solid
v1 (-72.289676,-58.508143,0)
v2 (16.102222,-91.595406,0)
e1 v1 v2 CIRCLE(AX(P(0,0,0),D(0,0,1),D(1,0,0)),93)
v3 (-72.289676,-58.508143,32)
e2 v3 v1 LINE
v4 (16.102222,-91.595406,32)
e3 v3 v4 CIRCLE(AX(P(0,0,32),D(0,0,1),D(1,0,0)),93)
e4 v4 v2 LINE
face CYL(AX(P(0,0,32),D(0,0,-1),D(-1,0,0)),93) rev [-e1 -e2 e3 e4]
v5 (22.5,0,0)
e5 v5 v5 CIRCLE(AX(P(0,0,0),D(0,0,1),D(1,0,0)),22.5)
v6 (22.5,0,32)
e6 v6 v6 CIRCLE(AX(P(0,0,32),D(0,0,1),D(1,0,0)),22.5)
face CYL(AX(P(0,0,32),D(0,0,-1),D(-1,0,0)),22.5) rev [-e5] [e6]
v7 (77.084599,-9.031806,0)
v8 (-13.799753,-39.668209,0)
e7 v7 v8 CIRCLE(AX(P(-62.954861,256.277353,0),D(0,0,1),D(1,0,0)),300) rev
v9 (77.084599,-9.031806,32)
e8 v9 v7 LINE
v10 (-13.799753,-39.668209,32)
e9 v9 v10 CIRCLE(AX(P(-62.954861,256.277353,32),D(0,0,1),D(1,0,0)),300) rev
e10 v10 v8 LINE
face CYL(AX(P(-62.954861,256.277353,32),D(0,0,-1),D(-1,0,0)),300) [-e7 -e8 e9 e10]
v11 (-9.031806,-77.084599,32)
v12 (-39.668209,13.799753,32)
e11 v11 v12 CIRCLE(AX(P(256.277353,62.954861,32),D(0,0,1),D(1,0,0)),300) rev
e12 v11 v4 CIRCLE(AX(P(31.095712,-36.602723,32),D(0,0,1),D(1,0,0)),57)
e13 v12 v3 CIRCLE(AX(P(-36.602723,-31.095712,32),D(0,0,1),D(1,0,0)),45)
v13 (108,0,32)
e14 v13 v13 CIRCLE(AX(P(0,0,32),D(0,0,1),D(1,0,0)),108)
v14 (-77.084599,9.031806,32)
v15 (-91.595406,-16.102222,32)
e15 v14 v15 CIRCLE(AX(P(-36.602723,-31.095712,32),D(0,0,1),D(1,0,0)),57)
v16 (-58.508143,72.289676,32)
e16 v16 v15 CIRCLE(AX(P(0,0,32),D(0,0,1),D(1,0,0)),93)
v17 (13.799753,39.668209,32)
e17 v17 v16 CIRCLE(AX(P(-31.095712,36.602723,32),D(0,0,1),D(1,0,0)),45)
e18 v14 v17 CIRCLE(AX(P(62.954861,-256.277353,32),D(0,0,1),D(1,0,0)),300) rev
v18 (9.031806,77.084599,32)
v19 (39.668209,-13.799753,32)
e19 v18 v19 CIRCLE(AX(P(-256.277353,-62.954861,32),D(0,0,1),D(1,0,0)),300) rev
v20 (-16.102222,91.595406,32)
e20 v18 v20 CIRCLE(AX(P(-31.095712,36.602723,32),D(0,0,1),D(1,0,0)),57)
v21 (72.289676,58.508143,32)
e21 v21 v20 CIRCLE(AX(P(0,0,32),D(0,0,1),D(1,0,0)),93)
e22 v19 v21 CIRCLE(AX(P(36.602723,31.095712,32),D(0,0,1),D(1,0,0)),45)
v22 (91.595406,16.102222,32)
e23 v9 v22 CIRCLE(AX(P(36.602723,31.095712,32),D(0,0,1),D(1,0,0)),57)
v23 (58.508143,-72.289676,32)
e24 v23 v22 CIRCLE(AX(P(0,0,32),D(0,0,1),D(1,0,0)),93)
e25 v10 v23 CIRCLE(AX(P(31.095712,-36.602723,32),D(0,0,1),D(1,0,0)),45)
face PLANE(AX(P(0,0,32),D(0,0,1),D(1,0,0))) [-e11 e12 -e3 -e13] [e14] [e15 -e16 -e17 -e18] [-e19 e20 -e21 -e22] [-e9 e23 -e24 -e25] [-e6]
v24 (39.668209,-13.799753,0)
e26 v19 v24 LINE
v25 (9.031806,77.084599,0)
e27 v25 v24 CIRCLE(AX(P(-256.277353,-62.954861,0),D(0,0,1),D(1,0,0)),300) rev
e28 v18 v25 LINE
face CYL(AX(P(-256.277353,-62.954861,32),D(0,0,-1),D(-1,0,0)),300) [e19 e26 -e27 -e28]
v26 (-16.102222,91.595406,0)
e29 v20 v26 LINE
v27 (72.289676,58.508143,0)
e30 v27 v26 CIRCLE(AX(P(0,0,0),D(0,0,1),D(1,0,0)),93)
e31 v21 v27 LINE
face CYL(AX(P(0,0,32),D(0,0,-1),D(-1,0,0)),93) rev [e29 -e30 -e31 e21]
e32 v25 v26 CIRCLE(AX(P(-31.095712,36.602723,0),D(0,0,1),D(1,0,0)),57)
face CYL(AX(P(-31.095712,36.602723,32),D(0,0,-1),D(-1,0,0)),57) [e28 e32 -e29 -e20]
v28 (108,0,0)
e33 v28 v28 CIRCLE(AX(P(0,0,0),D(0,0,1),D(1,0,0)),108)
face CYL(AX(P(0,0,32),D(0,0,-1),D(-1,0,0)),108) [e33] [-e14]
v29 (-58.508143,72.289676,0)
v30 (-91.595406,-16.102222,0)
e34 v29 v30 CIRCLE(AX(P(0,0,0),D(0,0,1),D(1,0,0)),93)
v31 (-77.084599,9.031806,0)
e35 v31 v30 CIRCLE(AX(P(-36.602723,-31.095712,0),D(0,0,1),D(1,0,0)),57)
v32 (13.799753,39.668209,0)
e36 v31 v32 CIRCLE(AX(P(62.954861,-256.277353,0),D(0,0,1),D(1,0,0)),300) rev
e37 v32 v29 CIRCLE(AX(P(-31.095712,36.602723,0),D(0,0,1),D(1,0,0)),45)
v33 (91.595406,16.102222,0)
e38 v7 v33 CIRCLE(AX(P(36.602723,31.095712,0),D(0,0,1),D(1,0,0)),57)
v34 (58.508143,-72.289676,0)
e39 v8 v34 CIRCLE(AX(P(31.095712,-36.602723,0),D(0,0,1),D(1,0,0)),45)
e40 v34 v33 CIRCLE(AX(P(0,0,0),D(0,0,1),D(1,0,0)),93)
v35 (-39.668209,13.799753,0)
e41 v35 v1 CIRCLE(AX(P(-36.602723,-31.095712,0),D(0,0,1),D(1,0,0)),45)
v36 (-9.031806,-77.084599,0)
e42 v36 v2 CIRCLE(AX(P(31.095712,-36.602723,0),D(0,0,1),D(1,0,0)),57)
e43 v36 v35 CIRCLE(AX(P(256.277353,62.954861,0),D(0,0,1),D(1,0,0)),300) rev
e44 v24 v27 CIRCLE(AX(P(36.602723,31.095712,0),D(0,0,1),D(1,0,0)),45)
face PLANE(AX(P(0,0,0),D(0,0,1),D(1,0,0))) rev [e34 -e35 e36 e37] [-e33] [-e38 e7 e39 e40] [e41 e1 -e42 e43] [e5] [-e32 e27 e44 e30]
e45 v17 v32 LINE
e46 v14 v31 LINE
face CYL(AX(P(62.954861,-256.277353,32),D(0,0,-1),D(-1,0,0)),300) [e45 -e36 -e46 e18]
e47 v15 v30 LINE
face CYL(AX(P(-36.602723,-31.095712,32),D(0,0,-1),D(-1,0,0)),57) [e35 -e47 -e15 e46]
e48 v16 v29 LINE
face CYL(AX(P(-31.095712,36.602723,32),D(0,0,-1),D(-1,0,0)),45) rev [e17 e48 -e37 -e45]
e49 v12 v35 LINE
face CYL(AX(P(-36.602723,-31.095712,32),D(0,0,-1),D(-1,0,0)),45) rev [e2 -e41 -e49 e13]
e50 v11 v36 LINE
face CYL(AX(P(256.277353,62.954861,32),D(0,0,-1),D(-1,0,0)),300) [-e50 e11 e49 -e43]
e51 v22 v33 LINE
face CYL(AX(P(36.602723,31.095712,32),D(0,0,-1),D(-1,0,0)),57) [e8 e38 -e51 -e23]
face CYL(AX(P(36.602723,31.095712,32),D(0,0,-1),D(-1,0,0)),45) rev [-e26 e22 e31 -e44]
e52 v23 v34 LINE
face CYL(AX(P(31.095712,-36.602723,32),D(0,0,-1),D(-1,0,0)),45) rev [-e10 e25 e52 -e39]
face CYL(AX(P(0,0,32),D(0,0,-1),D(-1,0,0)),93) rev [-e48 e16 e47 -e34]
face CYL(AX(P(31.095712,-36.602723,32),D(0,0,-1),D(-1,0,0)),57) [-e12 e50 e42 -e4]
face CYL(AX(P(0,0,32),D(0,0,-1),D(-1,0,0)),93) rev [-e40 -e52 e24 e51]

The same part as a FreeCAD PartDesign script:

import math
import FreeCAD as App
import Part
import Sketcher
from FreeCAD import Vector
Q = App.Units.Quantity

doc = App.newDocument("Part")
params = doc.addObject("Spreadsheet::Sheet", "Params")
for row, (alias, value) in enumerate([
    ("sketch1_diameter", "216 mm"),
    ("sketch1_diameter2", "45 mm"),
    ("sketch1_radius", "45 mm"),
    ("sketch1_radius2", "300 mm"),
    ("sketch1_radius3", "57 mm"),
    ("pad1_length", "32 mm"),
], start=1):
    params.set(f"A{row}", alias)
    params.set(f"B{row}", "=" + value)
    params.setAlias(f"B{row}", alias)

body = doc.addObject("PartDesign::Body", "Body")

# Sketch on XY plane
sketch1 = body.newObject("Sketcher::SketchObject", "Sketch")
sketch1.AttachmentSupport = (doc.getObject("XY_Plane"), [""])
sketch1.MapMode = "FlatFace"
sketch1.addGeometry(Part.Circle(Vector(0, 0, 0), Vector(0, 0, 1), 108), False)
sketch1.addGeometry(Part.ArcOfCircle(Part.Circle(Vector(-37, -31, 0), Vector(0, 0, 1), 45), math.radians(94), math.radians(218)), False)
sketch1.addGeometry(Part.ArcOfCircle(Part.Circle(Vector(256, 63, 0), Vector(0, 0, 1), 300), math.radians(-170.57), math.radians(-152.17)), False)
sketch1.addGeometry(Part.ArcOfCircle(Part.Circle(Vector(31, -37, 0), Vector(0, 0, 1), 57), math.radians(-135), math.radians(-105)), False)
sketch1.addGeometry(Part.ArcOfCircle(Part.Circle(Vector(0, 0, 0), Vector(0, 0, 1), 93), math.radians(-102), math.radians(-80)), False)
sketch1.addGeometry(Part.ArcOfCircle(Part.Circle(Vector(0, 0, 0), Vector(0, 0, 1), 93), math.radians(-141), math.radians(-102)), False)
sketch1.addGeometry(Part.ArcOfCircle(Part.Circle(Vector(31, -37, 0), Vector(0, 0, 1), 45), math.radians(-176), math.radians(-52)), False)
sketch1.addGeometry(Part.ArcOfCircle(Part.Circle(Vector(-63, 256, 0), Vector(0, 0, 1), 300), math.radians(-80.57), math.radians(-62.17)), False)
sketch1.addGeometry(Part.ArcOfCircle(Part.Circle(Vector(37, 31, 0), Vector(0, 0, 1), 57), math.radians(-45), math.radians(-15)), False)
sketch1.addGeometry(Part.ArcOfCircle(Part.Circle(Vector(0, 0, 0), Vector(0, 0, 1), 93), math.radians(-12), math.radians(10)), False)
sketch1.addGeometry(Part.ArcOfCircle(Part.Circle(Vector(0, 0, 0), Vector(0, 0, 1), 93), math.radians(-51), math.radians(-12)), False)
sketch1.addGeometry(Part.Circle(Vector(0, 0, 0), Vector(0, 0, 1), 22), False)
sketch1.addGeometry(Part.ArcOfCircle(Part.Circle(Vector(-31, 37, 0), Vector(0, 0, 1), 45), math.radians(4), math.radians(128)), False)
sketch1.addGeometry(Part.ArcOfCircle(Part.Circle(Vector(63, -256, 0), Vector(0, 0, 1), 300), math.radians(99.43), math.radians(117.83)), False)
sketch1.addGeometry(Part.ArcOfCircle(Part.Circle(Vector(-37, -31, 0), Vector(0, 0, 1), 57), math.radians(135), math.radians(165)), False)
sketch1.addGeometry(Part.ArcOfCircle(Part.Circle(Vector(0, 0, 0), Vector(0, 0, 1), 93), math.radians(168), math.radians(190)), False)
sketch1.addGeometry(Part.ArcOfCircle(Part.Circle(Vector(0, 0, 0), Vector(0, 0, 1), 93), math.radians(129), math.radians(168)), False)
sketch1.addGeometry(Part.ArcOfCircle(Part.Circle(Vector(37, 31, 0), Vector(0, 0, 1), 45), math.radians(-86), math.radians(38)), False)
sketch1.addGeometry(Part.ArcOfCircle(Part.Circle(Vector(-256, -63, 0), Vector(0, 0, 1), 300), math.radians(9.43), math.radians(27.83)), False)
sketch1.addGeometry(Part.ArcOfCircle(Part.Circle(Vector(-31, 37, 0), Vector(0, 0, 1), 57), math.radians(45), math.radians(75)), False)
sketch1.addGeometry(Part.ArcOfCircle(Part.Circle(Vector(0, 0, 0), Vector(0, 0, 1), 93), math.radians(78), math.radians(100)), False)
sketch1.addGeometry(Part.ArcOfCircle(Part.Circle(Vector(0, 0, 0), Vector(0, 0, 1), 93), math.radians(39), math.radians(78)), False)
sketch1.addConstraint(Sketcher.Constraint("Coincident", 1, 1, 2, 1))
sketch1.addConstraint(Sketcher.Constraint("Coincident", 2, 2, 3, 1))
sketch1.addConstraint(Sketcher.Constraint("Coincident", 3, 2, 4, 2))
sketch1.addConstraint(Sketcher.Constraint("Tangent", 4, 1, 5, 2))
sketch1.addConstraint(Sketcher.Constraint("Coincident", 5, 1, 1, 2))
sketch1.addConstraint(Sketcher.Constraint("Coincident", 6, 1, 7, 1))
sketch1.addConstraint(Sketcher.Constraint("Coincident", 7, 2, 8, 1))
sketch1.addConstraint(Sketcher.Constraint("Coincident", 8, 2, 9, 2))
sketch1.addConstraint(Sketcher.Constraint("Tangent", 9, 1, 10, 2))
sketch1.addConstraint(Sketcher.Constraint("Coincident", 10, 1, 6, 2))
sketch1.addConstraint(Sketcher.Constraint("Coincident", 12, 1, 13, 1))
sketch1.addConstraint(Sketcher.Constraint("Coincident", 13, 2, 14, 1))
sketch1.addConstraint(Sketcher.Constraint("Coincident", 14, 2, 15, 2))
sketch1.addConstraint(Sketcher.Constraint("Tangent", 15, 1, 16, 2))
sketch1.addConstraint(Sketcher.Constraint("Coincident", 16, 1, 12, 2))
sketch1.addConstraint(Sketcher.Constraint("Coincident", 17, 1, 18, 1))
sketch1.addConstraint(Sketcher.Constraint("Coincident", 18, 2, 19, 1))
sketch1.addConstraint(Sketcher.Constraint("Coincident", 19, 2, 20, 2))
sketch1.addConstraint(Sketcher.Constraint("Tangent", 20, 1, 21, 2))
sketch1.addConstraint(Sketcher.Constraint("Coincident", 21, 1, 17, 2))
sketch1.addConstraint(Sketcher.Constraint("Coincident", 0, 3, -1, 1))
sketch1.addConstraint(Sketcher.Constraint("Coincident", 4, 3, -1, 1))
sketch1.addConstraint(Sketcher.Constraint("Coincident", 9, 3, -1, 1))
sketch1.addConstraint(Sketcher.Constraint("Coincident", 11, 3, -1, 1))
sketch1.addConstraint(Sketcher.Constraint("Coincident", 15, 3, -1, 1))
sketch1.addConstraint(Sketcher.Constraint("Coincident", 20, 3, -1, 1))
sketch1.addConstraint(Sketcher.Constraint("Coincident", 6, 3, 3, 3))
sketch1.addConstraint(Sketcher.Constraint("Coincident", 14, 3, 1, 3))
sketch1.addConstraint(Sketcher.Constraint("Coincident", 17, 3, 8, 3))
sketch1.addConstraint(Sketcher.Constraint("Coincident", 19, 3, 12, 3))
sketch1.addConstraint(Sketcher.Constraint("Equal", 4, 5))
sketch1.addConstraint(Sketcher.Constraint("Equal", 1, 6))
sketch1.addConstraint(Sketcher.Constraint("Equal", 2, 7))
sketch1.addConstraint(Sketcher.Constraint("Equal", 3, 8))
sketch1.addConstraint(Sketcher.Constraint("Equal", 5, 9))
sketch1.addConstraint(Sketcher.Constraint("Equal", 9, 10))
sketch1.addConstraint(Sketcher.Constraint("Equal", 6, 12))
sketch1.addConstraint(Sketcher.Constraint("Equal", 7, 13))
sketch1.addConstraint(Sketcher.Constraint("Equal", 8, 14))
sketch1.addConstraint(Sketcher.Constraint("Equal", 10, 15))
sketch1.addConstraint(Sketcher.Constraint("Equal", 15, 16))
sketch1.addConstraint(Sketcher.Constraint("Equal", 12, 17))
sketch1.addConstraint(Sketcher.Constraint("Equal", 13, 18))
sketch1.addConstraint(Sketcher.Constraint("Equal", 14, 19))
sketch1.addConstraint(Sketcher.Constraint("Equal", 16, 20))
sketch1.addConstraint(Sketcher.Constraint("Equal", 20, 21))
sketch1.addConstraint(Sketcher.Constraint("Symmetric", 1, 3, 8, 3, -1, 1))
sketch1.addConstraint(Sketcher.Constraint("Symmetric", 3, 3, 12, 3, -1, 1))
sketch1.addConstraint(Sketcher.Constraint("Symmetric", 7, 3, 13, 3, -1, 1))
sketch1.addConstraint(Sketcher.Constraint("Symmetric", 2, 3, 18, 3, -1, 1))
sketch1.addConstraint(Sketcher.Constraint("Diameter", 0, Q("216 mm")))
sketch1.addConstraint(Sketcher.Constraint("Diameter", 11, Q("45 mm")))
sketch1.addConstraint(Sketcher.Constraint("Radius", 1, Q("45 mm")))
sketch1.addConstraint(Sketcher.Constraint("Radius", 2, Q("300 mm")))
sketch1.addConstraint(Sketcher.Constraint("Radius", 3, Q("57 mm")))
sketch1.addConstraint(Sketcher.Constraint("Radius", 4, Q("93 mm")))
sketch1.addConstraint(Sketcher.Constraint("DistanceY", 2, 2, -1, 1, Q("77.084599 mm")))
sketch1.addConstraint(Sketcher.Constraint("DistanceX", -1, 1, 7, 2, Q("77.084599 mm")))
sketch1.addConstraint(Sketcher.Constraint("DistanceY", 4, 1, 6, 3, Q("54.5177 mm")))
sketch1.addConstraint(Sketcher.Constraint("DistanceX", 17, 3, 9, 1, Q("54.5177 mm")))
sketch1.addConstraint(Sketcher.Constraint("DistanceY", 1, 3, -1, 1, Q("31.095712 mm")))
sketch1.addConstraint(Sketcher.Constraint("DistanceY", -1, 1, 2, 3, Q("62.954861 mm")))
sketch1.addConstraint(Sketcher.Constraint("DistanceX", -1, 1, 3, 3, Q("31.095712 mm")))
sketch1.addConstraint(Sketcher.Constraint("DistanceX", 7, 3, -1, 1, Q("62.954861 mm")))
sketch1.addConstraint(Sketcher.Constraint("DistanceX", 1, 1, -1, 1, Q("39.668209 mm")))
sketch1.addConstraint(Sketcher.Constraint("DistanceY", 6, 1, -1, 1, Q("39.668209 mm")))
sketch1.addConstraint(Sketcher.Constraint("DistanceY", -1, 1, 15, 1, Q("18.60292 mm")))
sketch1.addConstraint(Sketcher.Constraint("DistanceX", -1, 1, 20, 1, Q("18.60292 mm")))
sketch1.setExpression("Constraints[50]", "Params.sketch1_diameter")
sketch1.setExpression("Constraints[51]", "Params.sketch1_diameter2")
sketch1.setExpression("Constraints[52]", "Params.sketch1_radius")
sketch1.setExpression("Constraints[53]", "Params.sketch1_radius2")
sketch1.setExpression("Constraints[54]", "Params.sketch1_radius3")
pad1 = body.newObject("PartDesign::Pad", "Pad")
pad1.Profile = sketch1
pad1.setExpression("Length", "Params.pad1_length")

doc.recompute()
